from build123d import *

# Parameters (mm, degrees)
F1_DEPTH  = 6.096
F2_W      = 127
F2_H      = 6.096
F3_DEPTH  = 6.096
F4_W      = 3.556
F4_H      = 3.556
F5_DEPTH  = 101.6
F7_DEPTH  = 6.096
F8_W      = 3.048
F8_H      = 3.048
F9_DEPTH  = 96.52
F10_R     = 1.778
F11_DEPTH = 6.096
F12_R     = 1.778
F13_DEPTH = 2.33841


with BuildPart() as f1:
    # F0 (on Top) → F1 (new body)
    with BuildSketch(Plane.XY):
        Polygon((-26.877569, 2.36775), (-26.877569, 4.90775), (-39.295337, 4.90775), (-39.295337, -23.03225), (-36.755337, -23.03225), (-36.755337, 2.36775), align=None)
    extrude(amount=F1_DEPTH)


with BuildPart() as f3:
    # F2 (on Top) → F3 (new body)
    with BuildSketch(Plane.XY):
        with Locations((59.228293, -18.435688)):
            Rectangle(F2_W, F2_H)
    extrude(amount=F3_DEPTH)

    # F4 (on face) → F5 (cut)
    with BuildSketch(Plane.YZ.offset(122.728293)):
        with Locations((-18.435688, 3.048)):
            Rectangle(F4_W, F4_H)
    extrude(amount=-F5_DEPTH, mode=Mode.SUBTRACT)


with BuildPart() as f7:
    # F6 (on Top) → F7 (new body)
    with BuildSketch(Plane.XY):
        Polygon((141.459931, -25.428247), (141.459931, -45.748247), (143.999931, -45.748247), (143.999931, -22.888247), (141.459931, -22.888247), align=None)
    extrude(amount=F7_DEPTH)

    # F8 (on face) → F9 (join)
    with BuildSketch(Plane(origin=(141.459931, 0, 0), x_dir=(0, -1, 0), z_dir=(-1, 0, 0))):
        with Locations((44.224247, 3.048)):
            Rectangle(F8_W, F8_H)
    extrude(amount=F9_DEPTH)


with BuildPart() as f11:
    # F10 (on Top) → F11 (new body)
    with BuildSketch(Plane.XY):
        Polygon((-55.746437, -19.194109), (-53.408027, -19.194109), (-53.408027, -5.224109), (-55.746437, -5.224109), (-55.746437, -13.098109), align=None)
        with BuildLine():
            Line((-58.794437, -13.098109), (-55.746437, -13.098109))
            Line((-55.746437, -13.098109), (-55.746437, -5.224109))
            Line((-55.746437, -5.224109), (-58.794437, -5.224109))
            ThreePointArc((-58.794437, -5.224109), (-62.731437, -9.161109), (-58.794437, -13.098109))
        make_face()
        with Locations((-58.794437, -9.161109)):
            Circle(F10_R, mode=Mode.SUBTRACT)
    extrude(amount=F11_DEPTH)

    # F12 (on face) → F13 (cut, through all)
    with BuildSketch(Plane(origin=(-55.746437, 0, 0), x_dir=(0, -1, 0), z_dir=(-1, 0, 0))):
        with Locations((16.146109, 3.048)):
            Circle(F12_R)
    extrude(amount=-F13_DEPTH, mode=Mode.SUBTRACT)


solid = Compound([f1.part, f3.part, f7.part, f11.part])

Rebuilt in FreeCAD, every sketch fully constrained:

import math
import FreeCAD as App
import Part
import Sketcher
Q = App.Units.Quantity

doc = App.newDocument("Part")
params = doc.addObject("Spreadsheet::Sheet", "Params")
for row, (alias, value) in enumerate([
    ("sketch1_height", "1 in"),
    ("sketch1_width", "0.1 in"),
    ("pad1_length", "0.24 in"),
    ("sketch2_width", "5 in"),
    ("sketch2_height", "0.24 in"),
    ("pad2_length", "0.24 in"),
    ("sketch3_width", "0.14 in"),
    ("pocket1_length", "4 in"),
    ("sketch4_width", "0.1 in"),
    ("sketch4_height", "0.9 in"),
    ("pad3_length", "0.24 in"),
    ("sketch5_width", "0.12 in"),
    ("pad4_length", "3.8 in"),
    ("sketch6_diameter", "0.14 in"),
    ("sketch6_radius", "0.155 in"),
    ("sketch6_width", "0.12 in"),
    ("sketch6_height", "0.55 in"),
    ("pad5_length", "0.24 in"),
    ("sketch7_diameter", "0.14 in"),
], start=1):
    params.set(f"A{row}", alias)
    params.set(f"B{row}", "=" + value)
    params.setAlias(f"B{row}", alias)

body = doc.addObject("PartDesign::Body", "Body")

# Sketch on XY plane
sketch1 = body.newObject("Sketcher::SketchObject", "Sketch")
sketch1.AttachmentSupport = (doc.getObject("XY_Plane"), [""])
sketch1.MapMode = "FlatFace"
sketch1.addGeometry([
    Part.LineSegment(App.Vector(-26.877569, 2.36775, 0), App.Vector(-26.877569, 4.90775, 0)),  # 0
    Part.LineSegment(App.Vector(-26.877569, 4.90775, 0), App.Vector(-39.295337, 4.90775, 0)),  # 1
    Part.LineSegment(App.Vector(-39.295337, 4.90775, 0), App.Vector(-39.295337, -23.03225, 0)),  # 2
    Part.LineSegment(App.Vector(-39.295337, -23.03225, 0), App.Vector(-36.755337, -23.03225, 0)),  # 3
    Part.LineSegment(App.Vector(-36.755337, -23.03225, 0), App.Vector(-36.755337, 2.36775, 0)),  # 4
    Part.LineSegment(App.Vector(-36.755337, 2.36775, 0), App.Vector(-26.877569, 2.36775, 0)),  # 5
], False)
sketch1.addConstraint([
    Sketcher.Constraint("Coincident", 0, 2, 1, 1),
    Sketcher.Constraint("Coincident", 1, 2, 2, 1),
    Sketcher.Constraint("Coincident", 2, 2, 3, 1),
    Sketcher.Constraint("Coincident", 3, 2, 4, 1),
    Sketcher.Constraint("Coincident", 4, 2, 5, 1),
    Sketcher.Constraint("Coincident", 5, 2, 0, 1),
    Sketcher.Constraint("Vertical", 0),
    Sketcher.Constraint("Horizontal", 1),
    Sketcher.Constraint("Vertical", 2),
    Sketcher.Constraint("Horizontal", 3),
    Sketcher.Constraint("Vertical", 4),
    Sketcher.Constraint("Horizontal", 5),
    Sketcher.Constraint("Equal", 3, 0),
    Sketcher.Constraint("DistanceY", 4, 1, 4, 2, Q("1 in")),
    Sketcher.Constraint("DistanceX", 3, 1, 3, 2, Q("0.1 in")),
    Sketcher.Constraint("DistanceX", 1, 2, 1, 1, Q("12.417768 mm")),
    Sketcher.Constraint("DistanceX", 0, 2, -1, 1, Q("26.877569 mm")),
    Sketcher.Constraint("DistanceY", -1, 1, 0, 2, Q("4.90775 mm")),
])
sketch1.setExpression("Constraints[13]", "Params.sketch1_height")
sketch1.setExpression("Constraints[14]", "Params.sketch1_width")
pad1 = body.newObject("PartDesign::Pad", "Pad")
pad1.Profile = sketch1
pad1.setExpression("Length", "Params.pad1_length")
body2 = doc.addObject("PartDesign::Body", "Body001")

# Sketch on XY plane
sketch2 = body2.newObject("Sketcher::SketchObject", "Sketch001")
sketch2.AttachmentSupport = (doc.getObject("XY_Plane001"), [""])
sketch2.MapMode = "FlatFace"
sketch2.addGeometry([
    Part.LineSegment(App.Vector(-4.271707, -15.387688, 0), App.Vector(-4.271707, -21.483688, 0)),
    Part.LineSegment(App.Vector(-4.271707, -21.483688, 0), App.Vector(122.728293, -21.483688, 0)),
    Part.LineSegment(App.Vector(122.728293, -21.483688, 0), App.Vector(122.728293, -15.387688, 0)),
    Part.LineSegment(App.Vector(122.728293, -15.387688, 0), App.Vector(-4.271707, -15.387688, 0)),
], False)
sketch2.addConstraint([
    Sketcher.Constraint("Coincident", 0, 2, 1, 1),
    Sketcher.Constraint("Coincident", 1, 2, 2, 1),
    Sketcher.Constraint("Coincident", 2, 2, 3, 1),
    Sketcher.Constraint("Coincident", 3, 2, 0, 1),
    Sketcher.Constraint("Vertical", 0),
    Sketcher.Constraint("Horizontal", 1),
    Sketcher.Constraint("Vertical", 2),
    Sketcher.Constraint("Horizontal", 3),
    Sketcher.Constraint("DistanceX", 1, 1, 1, 2, Q("5 in")),
    Sketcher.Constraint("DistanceY", 0, 2, 0, 1, Q("0.24 in")),
    Sketcher.Constraint("DistanceY", 0, 2, -1, 1, Q("21.483688 mm")),
    Sketcher.Constraint("DistanceX", 0, 2, -1, 1, Q("4.271707 mm")),
])
sketch2.setExpression("Constraints[8]", "Params.sketch2_width")
sketch2.setExpression("Constraints[9]", "Params.sketch2_height")
pad2 = body2.newObject("PartDesign::Pad", "Pad001")
pad2.Profile = sketch2
pad2.setExpression("Length", "Params.pad2_length")

# Sketch on YZ plane
sketch3 = body2.newObject("Sketcher::SketchObject", "Sketch002")
sketch3.AttachmentSupport = (doc.getObject("YZ_Plane001"), [""])
sketch3.MapMode = "FlatFace"
sketch3.AttachmentOffset = App.Placement(App.Vector(0, 0, 122.728293), App.Rotation())
sketch3.addGeometry([
    Part.LineSegment(App.Vector(-20.213688, 4.826, 0), App.Vector(-20.213688, 1.27, 0)),
    Part.LineSegment(App.Vector(-20.213688, 1.27, 0), App.Vector(-16.657688, 1.27, 0)),
    Part.LineSegment(App.Vector(-16.657688, 1.27, 0), App.Vector(-16.657688, 4.826, 0)),
    Part.LineSegment(App.Vector(-16.657688, 4.826, 0), App.Vector(-20.213688, 4.826, 0)),
], False)
sketch3.addConstraint([
    Sketcher.Constraint("Coincident", 0, 2, 1, 1),
    Sketcher.Constraint("Coincident", 1, 2, 2, 1),
    Sketcher.Constraint("Coincident", 2, 2, 3, 1),
    Sketcher.Constraint("Coincident", 3, 2, 0, 1),
    Sketcher.Constraint("Vertical", 0),
    Sketcher.Constraint("Horizontal", 1),
    Sketcher.Constraint("Vertical", 2),
    Sketcher.Constraint("Horizontal", 3),
    Sketcher.Constraint("Equal", 3, 0),
    Sketcher.Constraint("DistanceX", 1, 1, 1, 2, Q("0.14 in")),
    Sketcher.Constraint("DistanceY", -1, 1, 0, 2, Q("0.05 in")),
    Sketcher.Constraint("DistanceX", 0, 2, -1, 1, Q("20.213688 mm")),
])
sketch3.setExpression("Constraints[9]", "Params.sketch3_width")
pocket1 = body2.newObject("PartDesign::Pocket", "Pocket")
pocket1.Profile = sketch3
pocket1.setExpression("Length", "Params.pocket1_length")
body3 = doc.addObject("PartDesign::Body", "Body002")

# Sketch on XY plane
sketch4 = body3.newObject("Sketcher::SketchObject", "Sketch003")
sketch4.AttachmentSupport = (doc.getObject("XY_Plane002"), [""])
sketch4.MapMode = "FlatFace"
sketch4.addGeometry([
    Part.LineSegment(App.Vector(141.459931, -45.748247, 0), App.Vector(143.999931, -45.748247, 0)),
    Part.LineSegment(App.Vector(143.999931, -45.748247, 0), App.Vector(143.999931, -22.888247, 0)),
    Part.LineSegment(App.Vector(143.999931, -22.888247, 0), App.Vector(141.459931, -22.888247, 0)),
    Part.LineSegment(App.Vector(141.459931, -22.888247, 0), App.Vector(141.459931, -45.748247, 0)),
], False)
sketch4.addConstraint([
    Sketcher.Constraint("Coincident", 0, 2, 1, 1),
    Sketcher.Constraint("Coincident", 1, 2, 2, 1),
    Sketcher.Constraint("Coincident", 2, 2, 3, 1),
    Sketcher.Constraint("Coincident", 3, 2, 0, 1),
    Sketcher.Constraint("Horizontal", 0),
    Sketcher.Constraint("Vertical", 1),
    Sketcher.Constraint("Horizontal", 2),
    Sketcher.Constraint("Vertical", 3),
    Sketcher.Constraint("DistanceX", 0, 1, 0, 2, Q("0.1 in")),
    Sketcher.Constraint("DistanceY", 1, 1, 1, 2, Q("0.9 in")),
    Sketcher.Constraint("DistanceX", -1, 1, 0, 2, Q("143.999931 mm")),
    Sketcher.Constraint("DistanceY", 0, 2, -1, 1, Q("45.748247 mm")),
])
sketch4.setExpression("Constraints[8]", "Params.sketch4_width")
sketch4.setExpression("Constraints[9]", "Params.sketch4_height")
pad3 = body3.newObject("PartDesign::Pad", "Pad002")
pad3.Profile = sketch4
pad3.setExpression("Length", "Params.pad3_length")

# Sketch on YZ plane
sketch5 = body3.newObject("Sketcher::SketchObject", "Sketch004")
sketch5.AttachmentSupport = (doc.getObject("YZ_Plane002"), [""])
sketch5.MapMode = "FlatFace"
sketch5.AttachmentOffset = App.Placement(App.Vector(0, 0, 141.459931), App.Rotation())
sketch5.addGeometry([
    Part.LineSegment(App.Vector(-42.700247, 4.572, 0), App.Vector(-42.700247, 1.524, 0)),
    Part.LineSegment(App.Vector(-42.700247, 1.524, 0), App.Vector(-45.748247, 1.524, 0)),
    Part.LineSegment(App.Vector(-45.748247, 1.524, 0), App.Vector(-45.748247, 4.572, 0)),
    Part.LineSegment(App.Vector(-45.748247, 4.572, 0), App.Vector(-42.700247, 4.572, 0)),
], False)
sketch5.addConstraint([
    Sketcher.Constraint("Coincident", 0, 2, 1, 1),
    Sketcher.Constraint("Coincident", 1, 2, 2, 1),
    Sketcher.Constraint("Coincident", 2, 2, 3, 1),
    Sketcher.Constraint("Coincident", 3, 2, 0, 1),
    Sketcher.Constraint("Vertical", 0),
    Sketcher.Constraint("Horizontal", 1),
    Sketcher.Constraint("Vertical", 2),
    Sketcher.Constraint("Horizontal", 3),
    Sketcher.Constraint("Equal", 3, 0),
    Sketcher.Constraint("DistanceX", 1, 2, 1, 1, Q("0.12 in")),
    Sketcher.Constraint("DistanceY", -1, 1, 0, 2, Q("0.06 in")),
    Sketcher.Constraint("DistanceX", 0, 2, -1, 1, Q("42.700247 mm")),
])
sketch5.setExpression("Constraints[9]", "Params.sketch5_width")
pad4 = body3.newObject("PartDesign::Pad", "Pad003")
pad4.Profile = sketch5
pad4.setExpression("Length", "Params.pad4_length")
pad4.Reversed = True
body4 = doc.addObject("PartDesign::Body", "Body003")

# Sketch on XY plane
sketch6 = body4.newObject("Sketcher::SketchObject", "Sketch005")
sketch6.AttachmentSupport = (doc.getObject("XY_Plane003"), [""])
sketch6.MapMode = "FlatFace"
sketch6.addGeometry([
    Part.LineSegment(App.Vector(-55.746437, -19.194109, 0), App.Vector(-53.408027, -19.194109, 0)),  # 0
    Part.LineSegment(App.Vector(-53.408027, -19.194109, 0), App.Vector(-53.408027, -5.224109, 0)),  # 1
    Part.LineSegment(App.Vector(-53.408027, -5.224109, 0), App.Vector(-58.794437, -5.224109, 0)),  # 2
    Part.ArcOfCircle(Part.Circle(App.Vector(-58.794437, -9.161109, 0), App.Vector(0, 0, 1), 3.937), math.radians(90), math.radians(270)),  # 3
    Part.LineSegment(App.Vector(-58.794437, -13.098109, 0), App.Vector(-55.746437, -13.098109, 0)),  # 4
    Part.LineSegment(App.Vector(-55.746437, -13.098109, 0), App.Vector(-55.746437, -19.194109, 0)),  # 5
    Part.Circle(App.Vector(-58.794437, -9.161109, 0), App.Vector(0, 0, 1), 1.778),  # 6
], False)
sketch6.addConstraint([
    Sketcher.Constraint("Coincident", 0, 2, 1, 1),
    Sketcher.Constraint("Coincident", 1, 2, 2, 1),
    Sketcher.Constraint("Tangent", 2, 2, 3, 1),
    Sketcher.Constraint("Tangent", 3, 2, 4, 1),
    Sketcher.Constraint("Coincident", 4, 2, 5, 1),
    Sketcher.Constraint("Coincident", 5, 2, 0, 1),
    Sketcher.Constraint("Horizontal", 0),
    Sketcher.Constraint("Vertical", 1),
    Sketcher.Constraint("Horizontal", 2),
    Sketcher.Constraint("Horizontal", 4),
    Sketcher.Constraint("Vertical", 5),
    Sketcher.Constraint("Coincident", 6, 3, 3, 3),
    Sketcher.Constraint("Diameter", 6, Q("0.14 in")),
    Sketcher.Constraint("Radius", 3, Q("0.155 in")),
    Sketcher.Constraint("DistanceX", 4, 1, 4, 2, Q("0.12 in")),
    Sketcher.Constraint("DistanceY", 1, 1, 1, 2, Q("0.55 in")),
    Sketcher.Constraint("DistanceX", 0, 1, 0, 2, Q("2.33841 mm")),
    Sketcher.Constraint("DistanceY", 3, 3, -1, 1, Q("9.161109 mm")),
    Sketcher.Constraint("DistanceX", 3, 3, -1, 1, Q("58.794437 mm")),
])
sketch6.setExpression("Constraints[12]", "Params.sketch6_diameter")
sketch6.setExpression("Constraints[13]", "Params.sketch6_radius")
sketch6.setExpression("Constraints[14]", "Params.sketch6_width")
sketch6.setExpression("Constraints[15]", "Params.sketch6_height")
pad5 = body4.newObject("PartDesign::Pad", "Pad004")
pad5.Profile = sketch6
pad5.setExpression("Length", "Params.pad5_length")

# Sketch on YZ plane
sketch7 = body4.newObject("Sketcher::SketchObject", "Sketch006")
sketch7.AttachmentSupport = (doc.getObject("YZ_Plane003"), [""])
sketch7.MapMode = "FlatFace"
sketch7.AttachmentOffset = App.Placement(App.Vector(0, 0, -55.746437), App.Rotation())
sketch7.addGeometry(Part.Circle(App.Vector(-16.146109, 3.048, 0), App.Vector(0, 0, 1), 1.778), False)
sketch7.addConstraint([
    Sketcher.Constraint("Diameter", 0, Q("0.14 in")),
    Sketcher.Constraint("DistanceY", -1, 1, 0, 3, Q("0.12 in")),
    Sketcher.Constraint("DistanceX", 0, 3, -1, 1, Q("16.146109 mm")),
])
sketch7.setExpression("Constraints[0]", "Params.sketch7_diameter")
pocket2 = body4.newObject("PartDesign::Pocket", "Pocket001")
pocket2.Profile = sketch7
pocket2.Type = "ThroughAll"
pocket2.Reversed = True

doc.recompute()
